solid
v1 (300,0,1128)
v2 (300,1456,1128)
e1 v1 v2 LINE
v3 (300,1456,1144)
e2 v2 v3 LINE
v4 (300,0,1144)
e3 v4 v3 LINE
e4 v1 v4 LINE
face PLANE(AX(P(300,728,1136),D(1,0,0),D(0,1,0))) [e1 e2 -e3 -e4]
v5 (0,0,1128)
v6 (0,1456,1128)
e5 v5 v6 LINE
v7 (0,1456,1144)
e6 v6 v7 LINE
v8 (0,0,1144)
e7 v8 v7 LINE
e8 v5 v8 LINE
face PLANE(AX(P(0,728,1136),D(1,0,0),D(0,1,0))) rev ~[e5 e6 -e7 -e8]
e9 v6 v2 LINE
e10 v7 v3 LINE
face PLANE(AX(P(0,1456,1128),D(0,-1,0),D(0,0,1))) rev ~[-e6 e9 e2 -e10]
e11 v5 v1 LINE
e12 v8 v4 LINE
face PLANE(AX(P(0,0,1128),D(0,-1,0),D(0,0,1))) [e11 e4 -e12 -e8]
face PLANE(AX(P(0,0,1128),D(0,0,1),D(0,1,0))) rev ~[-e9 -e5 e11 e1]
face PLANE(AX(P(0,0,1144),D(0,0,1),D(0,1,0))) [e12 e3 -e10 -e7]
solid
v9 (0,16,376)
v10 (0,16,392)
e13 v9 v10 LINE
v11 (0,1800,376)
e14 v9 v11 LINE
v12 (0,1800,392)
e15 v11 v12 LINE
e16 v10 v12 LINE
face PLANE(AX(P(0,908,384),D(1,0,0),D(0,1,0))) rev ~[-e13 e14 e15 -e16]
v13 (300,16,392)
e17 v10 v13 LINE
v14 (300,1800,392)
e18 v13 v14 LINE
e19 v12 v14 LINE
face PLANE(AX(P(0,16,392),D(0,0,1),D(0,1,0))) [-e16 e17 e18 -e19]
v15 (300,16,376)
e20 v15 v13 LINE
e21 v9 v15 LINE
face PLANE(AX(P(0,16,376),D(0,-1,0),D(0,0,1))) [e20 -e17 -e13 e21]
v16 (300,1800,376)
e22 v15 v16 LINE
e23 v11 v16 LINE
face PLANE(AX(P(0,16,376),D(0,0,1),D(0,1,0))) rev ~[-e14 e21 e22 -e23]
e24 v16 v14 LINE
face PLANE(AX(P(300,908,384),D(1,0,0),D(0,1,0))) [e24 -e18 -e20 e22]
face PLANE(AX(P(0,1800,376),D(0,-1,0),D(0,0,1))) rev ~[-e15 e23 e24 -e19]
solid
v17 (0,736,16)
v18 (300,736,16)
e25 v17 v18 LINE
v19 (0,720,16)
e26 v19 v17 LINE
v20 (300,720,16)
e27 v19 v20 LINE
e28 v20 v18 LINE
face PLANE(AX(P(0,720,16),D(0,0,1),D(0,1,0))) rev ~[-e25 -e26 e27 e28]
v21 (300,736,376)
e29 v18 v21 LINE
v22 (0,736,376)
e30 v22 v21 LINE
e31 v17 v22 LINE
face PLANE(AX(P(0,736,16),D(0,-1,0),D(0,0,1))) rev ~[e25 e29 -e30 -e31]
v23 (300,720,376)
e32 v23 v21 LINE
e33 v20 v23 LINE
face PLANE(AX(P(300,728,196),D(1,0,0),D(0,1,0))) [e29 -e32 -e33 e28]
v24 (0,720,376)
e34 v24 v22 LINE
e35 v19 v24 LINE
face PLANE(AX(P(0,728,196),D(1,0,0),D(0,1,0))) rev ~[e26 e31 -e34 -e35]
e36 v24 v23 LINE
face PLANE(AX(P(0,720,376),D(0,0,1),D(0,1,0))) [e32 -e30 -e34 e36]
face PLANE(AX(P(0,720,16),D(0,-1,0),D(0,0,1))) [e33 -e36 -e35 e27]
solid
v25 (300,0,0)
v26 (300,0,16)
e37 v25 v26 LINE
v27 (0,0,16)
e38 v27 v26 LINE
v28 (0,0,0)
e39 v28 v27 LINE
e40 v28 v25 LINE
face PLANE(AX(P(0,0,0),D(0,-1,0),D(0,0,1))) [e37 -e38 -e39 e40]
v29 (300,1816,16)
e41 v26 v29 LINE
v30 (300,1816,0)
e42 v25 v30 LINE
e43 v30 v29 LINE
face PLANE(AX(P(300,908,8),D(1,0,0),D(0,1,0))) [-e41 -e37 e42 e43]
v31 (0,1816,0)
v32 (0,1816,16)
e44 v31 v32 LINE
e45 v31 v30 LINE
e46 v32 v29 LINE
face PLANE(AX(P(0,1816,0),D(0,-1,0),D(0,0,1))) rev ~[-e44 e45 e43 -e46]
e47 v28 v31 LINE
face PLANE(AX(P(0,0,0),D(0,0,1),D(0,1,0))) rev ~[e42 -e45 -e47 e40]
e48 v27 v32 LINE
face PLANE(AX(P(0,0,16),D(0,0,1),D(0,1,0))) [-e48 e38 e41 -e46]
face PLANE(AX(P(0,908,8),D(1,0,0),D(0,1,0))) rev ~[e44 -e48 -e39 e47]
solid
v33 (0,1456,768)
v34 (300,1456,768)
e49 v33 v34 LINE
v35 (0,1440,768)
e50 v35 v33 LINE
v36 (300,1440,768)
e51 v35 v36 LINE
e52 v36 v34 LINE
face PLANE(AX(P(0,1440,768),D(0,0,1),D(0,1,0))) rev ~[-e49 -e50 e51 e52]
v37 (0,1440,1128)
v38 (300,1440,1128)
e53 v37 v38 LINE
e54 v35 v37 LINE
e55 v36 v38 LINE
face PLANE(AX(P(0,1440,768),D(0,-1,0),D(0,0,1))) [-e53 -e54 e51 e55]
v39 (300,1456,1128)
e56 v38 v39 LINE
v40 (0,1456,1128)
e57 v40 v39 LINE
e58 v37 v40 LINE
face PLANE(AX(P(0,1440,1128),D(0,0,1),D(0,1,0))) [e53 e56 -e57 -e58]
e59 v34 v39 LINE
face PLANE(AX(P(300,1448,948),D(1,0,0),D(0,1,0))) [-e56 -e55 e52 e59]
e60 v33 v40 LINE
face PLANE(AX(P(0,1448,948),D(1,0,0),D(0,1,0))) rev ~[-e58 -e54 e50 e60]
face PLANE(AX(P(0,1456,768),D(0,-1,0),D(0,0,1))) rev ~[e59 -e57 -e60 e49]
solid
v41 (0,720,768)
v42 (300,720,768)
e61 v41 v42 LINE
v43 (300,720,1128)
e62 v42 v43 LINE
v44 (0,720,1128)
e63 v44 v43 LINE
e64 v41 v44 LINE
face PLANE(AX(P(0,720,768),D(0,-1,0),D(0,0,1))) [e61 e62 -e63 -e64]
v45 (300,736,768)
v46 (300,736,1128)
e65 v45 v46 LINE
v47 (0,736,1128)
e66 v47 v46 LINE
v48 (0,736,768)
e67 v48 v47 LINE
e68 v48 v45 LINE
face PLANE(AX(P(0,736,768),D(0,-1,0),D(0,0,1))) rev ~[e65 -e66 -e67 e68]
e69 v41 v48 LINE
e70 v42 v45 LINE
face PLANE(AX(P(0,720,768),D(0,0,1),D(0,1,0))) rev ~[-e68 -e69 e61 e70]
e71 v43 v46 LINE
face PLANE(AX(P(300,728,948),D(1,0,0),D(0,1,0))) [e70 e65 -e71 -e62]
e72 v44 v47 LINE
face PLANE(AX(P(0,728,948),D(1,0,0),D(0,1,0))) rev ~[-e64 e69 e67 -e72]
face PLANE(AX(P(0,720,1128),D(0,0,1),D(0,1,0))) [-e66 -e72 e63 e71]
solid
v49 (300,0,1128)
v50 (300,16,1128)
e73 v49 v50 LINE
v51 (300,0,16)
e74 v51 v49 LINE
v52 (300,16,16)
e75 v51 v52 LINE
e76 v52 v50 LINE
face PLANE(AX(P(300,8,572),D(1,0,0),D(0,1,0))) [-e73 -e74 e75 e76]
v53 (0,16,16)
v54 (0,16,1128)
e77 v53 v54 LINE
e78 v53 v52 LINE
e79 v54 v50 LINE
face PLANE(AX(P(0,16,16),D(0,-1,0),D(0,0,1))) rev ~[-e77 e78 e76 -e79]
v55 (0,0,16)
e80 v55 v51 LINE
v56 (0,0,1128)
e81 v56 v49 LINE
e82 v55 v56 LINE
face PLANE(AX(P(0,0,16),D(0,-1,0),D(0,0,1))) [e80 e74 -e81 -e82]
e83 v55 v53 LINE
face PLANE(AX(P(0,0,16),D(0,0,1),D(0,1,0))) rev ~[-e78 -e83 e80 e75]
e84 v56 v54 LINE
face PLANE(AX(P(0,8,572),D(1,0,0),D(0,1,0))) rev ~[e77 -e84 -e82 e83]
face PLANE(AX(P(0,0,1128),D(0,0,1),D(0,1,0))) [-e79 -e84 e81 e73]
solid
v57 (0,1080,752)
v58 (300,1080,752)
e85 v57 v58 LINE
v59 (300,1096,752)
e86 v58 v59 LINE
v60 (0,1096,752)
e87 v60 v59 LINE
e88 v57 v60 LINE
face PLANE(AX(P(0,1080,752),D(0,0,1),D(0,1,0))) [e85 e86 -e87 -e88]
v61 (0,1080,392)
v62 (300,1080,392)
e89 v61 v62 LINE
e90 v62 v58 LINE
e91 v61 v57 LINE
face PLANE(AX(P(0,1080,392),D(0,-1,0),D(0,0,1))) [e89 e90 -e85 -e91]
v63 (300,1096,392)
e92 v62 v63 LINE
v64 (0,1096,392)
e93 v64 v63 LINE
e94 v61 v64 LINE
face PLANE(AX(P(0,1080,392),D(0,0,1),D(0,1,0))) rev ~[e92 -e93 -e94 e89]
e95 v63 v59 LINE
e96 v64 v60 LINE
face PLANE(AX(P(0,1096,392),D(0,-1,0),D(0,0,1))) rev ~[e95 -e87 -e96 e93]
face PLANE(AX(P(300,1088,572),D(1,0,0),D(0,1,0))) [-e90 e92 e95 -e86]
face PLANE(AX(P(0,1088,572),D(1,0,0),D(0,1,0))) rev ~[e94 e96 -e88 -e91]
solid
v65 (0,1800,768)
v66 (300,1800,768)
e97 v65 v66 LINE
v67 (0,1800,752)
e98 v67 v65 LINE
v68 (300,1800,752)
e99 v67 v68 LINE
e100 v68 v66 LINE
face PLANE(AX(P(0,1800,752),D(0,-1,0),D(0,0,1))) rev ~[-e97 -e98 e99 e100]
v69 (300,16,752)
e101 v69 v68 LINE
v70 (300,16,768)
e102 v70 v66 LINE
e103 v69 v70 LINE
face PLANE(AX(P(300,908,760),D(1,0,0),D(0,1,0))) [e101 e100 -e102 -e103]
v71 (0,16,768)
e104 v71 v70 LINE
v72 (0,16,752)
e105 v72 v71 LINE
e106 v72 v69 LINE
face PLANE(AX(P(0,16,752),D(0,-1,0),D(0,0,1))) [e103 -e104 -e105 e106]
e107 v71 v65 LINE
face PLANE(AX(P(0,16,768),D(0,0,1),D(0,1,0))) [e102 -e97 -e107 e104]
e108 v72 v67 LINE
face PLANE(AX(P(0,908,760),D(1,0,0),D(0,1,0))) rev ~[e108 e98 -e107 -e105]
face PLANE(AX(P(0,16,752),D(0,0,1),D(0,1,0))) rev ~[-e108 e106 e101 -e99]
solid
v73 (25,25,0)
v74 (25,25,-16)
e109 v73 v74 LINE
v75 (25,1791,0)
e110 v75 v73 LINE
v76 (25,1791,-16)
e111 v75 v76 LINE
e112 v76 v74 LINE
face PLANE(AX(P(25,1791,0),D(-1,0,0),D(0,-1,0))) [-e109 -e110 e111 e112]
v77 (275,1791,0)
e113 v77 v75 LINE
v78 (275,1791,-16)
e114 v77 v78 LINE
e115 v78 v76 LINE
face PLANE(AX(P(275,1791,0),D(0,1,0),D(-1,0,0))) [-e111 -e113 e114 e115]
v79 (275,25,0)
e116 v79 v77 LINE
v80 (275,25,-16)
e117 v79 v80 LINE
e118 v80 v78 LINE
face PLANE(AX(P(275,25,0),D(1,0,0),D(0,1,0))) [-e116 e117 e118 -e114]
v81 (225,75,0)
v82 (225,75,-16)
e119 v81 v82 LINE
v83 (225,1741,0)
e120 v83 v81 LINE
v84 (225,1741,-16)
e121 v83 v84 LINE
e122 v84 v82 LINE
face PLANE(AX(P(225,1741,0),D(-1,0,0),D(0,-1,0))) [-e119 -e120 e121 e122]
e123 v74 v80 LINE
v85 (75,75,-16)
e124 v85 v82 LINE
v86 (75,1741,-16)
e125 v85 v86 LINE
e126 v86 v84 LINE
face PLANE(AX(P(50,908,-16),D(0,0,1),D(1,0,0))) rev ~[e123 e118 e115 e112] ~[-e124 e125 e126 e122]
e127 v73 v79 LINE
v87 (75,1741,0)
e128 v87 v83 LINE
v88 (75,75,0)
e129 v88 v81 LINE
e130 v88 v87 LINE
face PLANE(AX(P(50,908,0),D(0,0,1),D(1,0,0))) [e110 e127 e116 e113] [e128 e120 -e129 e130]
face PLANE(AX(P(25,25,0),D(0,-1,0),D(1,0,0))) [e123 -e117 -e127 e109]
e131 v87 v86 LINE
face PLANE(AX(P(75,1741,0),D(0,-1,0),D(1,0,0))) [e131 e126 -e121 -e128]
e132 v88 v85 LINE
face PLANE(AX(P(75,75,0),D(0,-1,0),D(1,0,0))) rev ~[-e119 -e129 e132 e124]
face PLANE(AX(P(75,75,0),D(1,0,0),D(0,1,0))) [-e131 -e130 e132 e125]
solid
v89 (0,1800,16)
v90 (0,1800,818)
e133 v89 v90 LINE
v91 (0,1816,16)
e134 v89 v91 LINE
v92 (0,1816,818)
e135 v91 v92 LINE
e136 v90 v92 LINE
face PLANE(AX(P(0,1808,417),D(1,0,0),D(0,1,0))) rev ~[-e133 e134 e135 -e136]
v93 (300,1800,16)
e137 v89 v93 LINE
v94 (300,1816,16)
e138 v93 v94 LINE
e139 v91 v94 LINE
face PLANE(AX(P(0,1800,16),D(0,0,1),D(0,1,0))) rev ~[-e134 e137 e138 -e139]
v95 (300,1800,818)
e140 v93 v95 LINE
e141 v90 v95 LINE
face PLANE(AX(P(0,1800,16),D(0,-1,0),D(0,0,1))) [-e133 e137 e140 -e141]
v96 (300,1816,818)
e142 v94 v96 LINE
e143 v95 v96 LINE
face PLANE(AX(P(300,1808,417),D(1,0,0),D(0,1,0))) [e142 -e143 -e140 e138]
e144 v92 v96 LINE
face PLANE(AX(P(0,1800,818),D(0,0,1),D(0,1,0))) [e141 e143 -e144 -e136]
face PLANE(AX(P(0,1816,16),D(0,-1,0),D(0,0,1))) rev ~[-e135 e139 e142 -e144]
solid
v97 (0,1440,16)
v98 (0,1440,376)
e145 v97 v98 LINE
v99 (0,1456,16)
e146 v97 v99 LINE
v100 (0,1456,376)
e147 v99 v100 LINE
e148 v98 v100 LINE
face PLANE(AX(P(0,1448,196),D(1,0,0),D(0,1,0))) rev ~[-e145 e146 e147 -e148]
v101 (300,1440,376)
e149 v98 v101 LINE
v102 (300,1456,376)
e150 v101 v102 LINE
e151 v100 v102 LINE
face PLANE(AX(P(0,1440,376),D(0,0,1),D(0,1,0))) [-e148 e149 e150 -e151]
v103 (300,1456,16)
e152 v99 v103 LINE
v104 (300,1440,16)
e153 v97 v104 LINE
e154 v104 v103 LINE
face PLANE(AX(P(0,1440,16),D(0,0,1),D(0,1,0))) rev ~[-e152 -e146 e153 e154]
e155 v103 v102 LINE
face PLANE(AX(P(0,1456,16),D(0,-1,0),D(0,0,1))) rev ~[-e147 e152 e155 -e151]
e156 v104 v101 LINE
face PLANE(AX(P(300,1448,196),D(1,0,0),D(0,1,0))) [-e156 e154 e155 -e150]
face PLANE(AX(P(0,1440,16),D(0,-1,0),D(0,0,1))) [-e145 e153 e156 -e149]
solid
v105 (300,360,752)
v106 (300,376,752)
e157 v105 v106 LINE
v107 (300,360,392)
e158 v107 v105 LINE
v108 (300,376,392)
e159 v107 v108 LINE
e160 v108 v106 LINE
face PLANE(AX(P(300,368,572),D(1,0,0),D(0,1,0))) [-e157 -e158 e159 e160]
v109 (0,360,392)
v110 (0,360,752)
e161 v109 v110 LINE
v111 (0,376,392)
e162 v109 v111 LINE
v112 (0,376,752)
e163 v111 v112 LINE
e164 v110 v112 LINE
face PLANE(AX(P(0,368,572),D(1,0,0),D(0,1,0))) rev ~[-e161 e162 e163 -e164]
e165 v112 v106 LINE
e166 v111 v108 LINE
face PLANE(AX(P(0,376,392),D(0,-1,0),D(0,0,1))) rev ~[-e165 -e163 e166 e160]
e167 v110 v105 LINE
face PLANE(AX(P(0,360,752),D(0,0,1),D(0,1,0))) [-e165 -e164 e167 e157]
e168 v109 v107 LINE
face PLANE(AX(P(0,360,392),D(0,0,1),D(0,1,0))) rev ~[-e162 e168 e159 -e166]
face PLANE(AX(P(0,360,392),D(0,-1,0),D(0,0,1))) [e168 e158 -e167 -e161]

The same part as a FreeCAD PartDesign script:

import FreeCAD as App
import Part
import Sketcher

V = App.Vector
Q = App.Units.Quantity


def add_polygon(sketch, points):
    """Adds a closed chain of lines whose ends are joined by coincident constraints."""
    first, n = sketch.GeometryCount, len(points)
    for a, b in zip(points, points[1:] + points[:1]):
        sketch.addGeometry(Part.LineSegment(App.Vector(*a, 0), App.Vector(*b, 0)), False)
    for i in range(n):
        sketch.addConstraint(Sketcher.Constraint("Coincident", first + i, 2, first + (i + 1) % n, 1))

doc = App.newDocument("Part")
body = doc.addObject("PartDesign::Body", "Body")
body.AllowCompound = True

sketch1 = body.newObject("Sketcher::SketchObject", "Sketch")
sketch1.AttachmentSupport = (doc.getObject("YZ_Plane"), [""])
sketch1.MapMode = "FlatFace"
add_polygon(sketch1, [(0, 16), (0, 0), (1816, 0), (1816, 16)])
add_polygon(sketch1, [(16, 392), (16, 376), (1800, 376), (1800, 392)])
add_polygon(sketch1, [(16, 768), (16, 752), (1800, 752), (1800, 768)])
add_polygon(sketch1, [(0, 1144), (0, 1128), (1456, 1128), (1456, 1144)])
sketch1.addConstraint([
    Sketcher.Constraint("Vertical", 0),
    Sketcher.Constraint("Horizontal", 1),
    Sketcher.Constraint("Vertical", 2),
    Sketcher.Constraint("Horizontal", 3),
    Sketcher.Constraint("Vertical", 4),
    Sketcher.Constraint("Horizontal", 5),
    Sketcher.Constraint("Vertical", 6),
    Sketcher.Constraint("Horizontal", 7),
    Sketcher.Constraint("Vertical", 8),
    Sketcher.Constraint("Horizontal", 9),
    Sketcher.Constraint("Vertical", 10),
    Sketcher.Constraint("Horizontal", 11),
    Sketcher.Constraint("Vertical", 12),
    Sketcher.Constraint("Horizontal", 13),
    Sketcher.Constraint("Vertical", 14),
    Sketcher.Constraint("Horizontal", 15),
    Sketcher.Constraint("Coincident", 0, 2, -1, 1),
    Sketcher.Constraint("PointOnObject", 12, 2, -2),
    Sketcher.Constraint("Vertical", 7, 2, 8, 2),
    Sketcher.Constraint("Vertical", 6, 2, 9, 2),
    Sketcher.Constraint("Equal", 2, 4),
    Sketcher.Constraint("Equal", 6, 8),
    Sketcher.Constraint("Equal", 10, 12),
    Sketcher.Constraint("DistanceX", 1, 1, 1, 2, Q("1816 mm")),
    Sketcher.Constraint("DistanceX", 5, 1, 5, 2, Q("1784 mm")),
    Sketcher.Constraint("DistanceX", 13, 1, 13, 2, Q("1456 mm")),
    Sketcher.Constraint("DistanceY", 0, 2, 0, 1, Q("16 mm")),
    Sketcher.Constraint("DistanceX", -1, 1, 4, 2, Q("16 mm")),
    Sketcher.Constraint("DistanceY", -1, 1, 4, 2, Q("376 mm")),
    Sketcher.Constraint("DistanceY", -1, 1, 8, 2, Q("752 mm")),
    Sketcher.Constraint("DistanceY", -1, 1, 12, 2, Q("1128 mm")),
])
pad1 = body.newObject("PartDesign::Pad", "Pad")
pad1.Profile = sketch1
pad1.Length = 300
body2 = doc.addObject("PartDesign::Body", "Body001")
body2.AllowCompound = True

sketch2 = body2.newObject("Sketcher::SketchObject", "Sketch001")
sketch2.AttachmentSupport = (doc.getObject("YZ_Plane001"), [""])
sketch2.MapMode = "FlatFace"
add_polygon(sketch2, [(1800, 818), (1800, 16), (1816, 16), (1816, 818)])
add_polygon(sketch2, [(0, 1128), (0, 16), (16, 16), (16, 1128)])
add_polygon(sketch2, [(1440, 1128), (1440, 768), (1456, 768), (1456, 1128)])
add_polygon(sketch2, [(1080, 752), (1080, 392), (1096, 392), (1096, 752)])
add_polygon(sketch2, [(1440, 376), (1440, 16), (1456, 16), (1456, 376)])
add_polygon(sketch2, [(720, 376), (720, 16), (736, 16), (736, 376)])
add_polygon(sketch2, [(360, 752), (360, 392), (376, 392), (376, 752)])
add_polygon(sketch2, [(720, 1128), (720, 768), (736, 768), (736, 1128)])
sketch2.addConstraint([
    Sketcher.Constraint("Vertical", 0),
    Sketcher.Constraint("Horizontal", 1),
    Sketcher.Constraint("Vertical", 2),
    Sketcher.Constraint("Horizontal", 3),
    Sketcher.Constraint("Vertical", 4),
    Sketcher.Constraint("Horizontal", 5),
    Sketcher.Constraint("Vertical", 6),
    Sketcher.Constraint("Horizontal", 7),
    Sketcher.Constraint("Vertical", 8),
    Sketcher.Constraint("Horizontal", 9),
    Sketcher.Constraint("Vertical", 10),
    Sketcher.Constraint("Horizontal", 11),
    Sketcher.Constraint("Vertical", 12),
    Sketcher.Constraint("Horizontal", 13),
    Sketcher.Constraint("Vertical", 14),
    Sketcher.Constraint("Horizontal", 15),
    Sketcher.Constraint("Vertical", 16),
    Sketcher.Constraint("Horizontal", 17),
    Sketcher.Constraint("Vertical", 18),
    Sketcher.Constraint("Horizontal", 19),
    Sketcher.Constraint("Vertical", 20),
    Sketcher.Constraint("Horizontal", 21),
    Sketcher.Constraint("Vertical", 22),
    Sketcher.Constraint("Horizontal", 23),
    Sketcher.Constraint("Vertical", 24),
    Sketcher.Constraint("Horizontal", 25),
    Sketcher.Constraint("Vertical", 26),
    Sketcher.Constraint("Horizontal", 27),
    Sketcher.Constraint("Vertical", 28),
    Sketcher.Constraint("Horizontal", 29),
    Sketcher.Constraint("Vertical", 30),
    Sketcher.Constraint("Horizontal", 31),
    Sketcher.Constraint("PointOnObject", 4, 2, -2),
    Sketcher.Constraint("Horizontal", 1, 2, 4, 2),
    Sketcher.Constraint("Horizontal", 7, 2, 10, 2),
    Sketcher.Constraint("Horizontal", 5, 2, 16, 2),
    Sketcher.Constraint("Horizontal", 17, 2, 20, 2),
    Sketcher.Constraint("Horizontal", 19, 2, 22, 2),
    Sketcher.Constraint("Horizontal", 13, 2, 24, 2),
    Sketcher.Constraint("Horizontal", 15, 2, 26, 2),
    Sketcher.Constraint("Horizontal", 9, 2, 28, 2),
    Sketcher.Constraint("Horizontal", 11, 2, 30, 2),
    Sketcher.Constraint("Vertical", 11, 2, 16, 2),
    Sketcher.Constraint("Vertical", 10, 2, 17, 2),
    Sketcher.Constraint("Vertical", 23, 2, 28, 2),
    Sketcher.Constraint("Vertical", 22, 2, 29, 2),
    Sketcher.Constraint("Equal", 3, 5),
    Sketcher.Constraint("Equal", 7, 9),
    Sketcher.Constraint("Equal", 11, 13),
    Sketcher.Constraint("Equal", 19, 21),
    Sketcher.Constraint("Equal", 23, 25),
    Sketcher.Constraint("Equal", 10, 12),
    Sketcher.Constraint("Equal", 14, 16),
    Sketcher.Constraint("DistanceX", 1, 1, 1, 2, Q("16 mm")),
    Sketcher.Constraint("DistanceY", 0, 2, 0, 1, Q("802 mm")),
    Sketcher.Constraint("DistanceY", 4, 2, 4, 1, Q("1112 mm")),
    Sketcher.Constraint("DistanceY", 8, 2, 8, 1, Q("360 mm")),
    Sketcher.Constraint("DistanceX", -1, 1, 0, 2, Q("1800 mm")),
    Sketcher.Constraint("DistanceY", -1, 1, 0, 2, Q("16 mm")),
    Sketcher.Constraint("DistanceX", -1, 1, 8, 2, Q("1440 mm")),
    Sketcher.Constraint("DistanceX", -1, 1, 12, 2, Q("1080 mm")),
    Sketcher.Constraint("DistanceY", -1, 1, 12, 2, Q("392 mm")),
    Sketcher.Constraint("DistanceX", -1, 1, 20, 2, Q("720 mm")),
    Sketcher.Constraint("DistanceX", -1, 1, 24, 2, Q("360 mm")),
])
pad2 = body2.newObject("PartDesign::Pad", "Pad001")
pad2.Profile = sketch2
pad2.Length = 300
body3 = doc.addObject("PartDesign::Body", "Body002")

sketch3 = body3.newObject("Sketcher::SketchObject", "Sketch002")
sketch3.AttachmentSupport = (doc.getObject("XY_Plane002"), [""])
sketch3.MapMode = "FlatFace"
add_polygon(sketch3, [(25, 1791), (25, 25), (275, 25), (275, 1791)])
add_polygon(sketch3, [(225, 1741), (225, 75), (75, 75), (75, 1741)])
sketch3.addConstraint([
    Sketcher.Constraint("Vertical", 0),
    Sketcher.Constraint("Horizontal", 1),
    Sketcher.Constraint("Vertical", 2),
    Sketcher.Constraint("Horizontal", 3),
    Sketcher.Constraint("Vertical", 4),
    Sketcher.Constraint("Horizontal", 5),
    Sketcher.Constraint("Vertical", 6),
    Sketcher.Constraint("Horizontal", 7),
    Sketcher.Constraint("DistanceX", 1, 1, 1, 2, Q("250 mm")),
    Sketcher.Constraint("DistanceX", 5, 2, 5, 1, Q("150 mm")),
    Sketcher.Constraint("DistanceY", 0, 2, 0, 1, Q("1766 mm")),
    Sketcher.Constraint("DistanceY", 4, 2, 4, 1, Q("1666 mm")),
    Sketcher.Constraint("DistanceX", -1, 1, 0, 2, Q("25 mm")),
    Sketcher.Constraint("DistanceY", -1, 1, 0, 2, Q("25 mm")),
    Sketcher.Constraint("DistanceX", -1, 1, 4, 2, Q("225 mm")),
    Sketcher.Constraint("DistanceY", -1, 1, 4, 2, Q("75 mm")),
])
pad3 = body3.newObject("PartDesign::Pad", "Pad002")
pad3.Profile = sketch3
pad3.Length = 16
pad3.Reversed = True

doc.recompute()
